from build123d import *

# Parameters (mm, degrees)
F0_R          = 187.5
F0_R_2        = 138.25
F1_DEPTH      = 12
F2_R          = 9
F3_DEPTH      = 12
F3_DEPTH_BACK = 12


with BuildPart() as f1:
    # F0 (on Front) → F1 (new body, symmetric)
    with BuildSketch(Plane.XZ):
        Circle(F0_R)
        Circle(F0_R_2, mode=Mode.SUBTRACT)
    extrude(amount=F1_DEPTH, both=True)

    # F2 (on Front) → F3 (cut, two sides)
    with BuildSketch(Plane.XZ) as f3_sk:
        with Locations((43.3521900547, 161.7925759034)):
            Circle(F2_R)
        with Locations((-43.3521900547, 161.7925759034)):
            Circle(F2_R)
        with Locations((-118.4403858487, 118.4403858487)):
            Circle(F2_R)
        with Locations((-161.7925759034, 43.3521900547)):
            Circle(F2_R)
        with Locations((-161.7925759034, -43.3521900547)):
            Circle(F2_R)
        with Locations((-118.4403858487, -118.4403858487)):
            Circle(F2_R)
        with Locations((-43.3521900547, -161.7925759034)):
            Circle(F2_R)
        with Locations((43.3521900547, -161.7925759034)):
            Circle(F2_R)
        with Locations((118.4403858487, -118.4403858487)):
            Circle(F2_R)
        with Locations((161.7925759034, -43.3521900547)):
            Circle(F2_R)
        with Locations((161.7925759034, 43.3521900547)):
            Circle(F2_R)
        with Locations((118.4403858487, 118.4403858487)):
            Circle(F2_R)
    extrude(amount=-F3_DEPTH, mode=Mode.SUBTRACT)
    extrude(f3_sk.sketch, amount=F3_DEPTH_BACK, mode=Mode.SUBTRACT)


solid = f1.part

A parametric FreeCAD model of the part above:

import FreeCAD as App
import Part
import Sketcher
from FreeCAD import Vector

doc = App.newDocument("Part")
body = doc.addObject("PartDesign::Body", "Body")

sketch1 = body.newObject("Sketcher::SketchObject", "Sketch")
sketch1.AttachmentSupport = (doc.getObject("XZ_Plane"), [""])
sketch1.MapMode = "FlatFace"
sketch1.addGeometry([
    Part.Circle(Vector(0, 0, 0), Vector(0, 0, 1), 188),
    Part.Circle(Vector(0, 0, 0), Vector(0, 0, 1), 138),
], False)
sketch1.addConstraint([
    Sketcher.Constraint("Coincident", 0, 3, -1, 1),
    Sketcher.Constraint("Coincident", 1, 3, -1, 1),
    Sketcher.Constraint("Diameter", 0, 375.0),
    Sketcher.Constraint("Diameter", 1, 276.5),
])
pad1 = body.newObject("PartDesign::Pad", "Pad")
pad1.Profile = sketch1
pad1.Length = 24
pad1.Midplane = True

sketch2 = body.newObject("Sketcher::SketchObject", "Sketch001")
sketch2.AttachmentSupport = (doc.getObject("XZ_Plane"), [""])
sketch2.MapMode = "FlatFace"
sketch2.addGeometry([
    Part.Circle(Vector(43, 162, 0), Vector(0, 0, 1), 9),
    Part.Circle(Vector(-43, 162, 0), Vector(0, 0, 1), 9),
    Part.Circle(Vector(-118, 118, 0), Vector(0, 0, 1), 9),
    Part.Circle(Vector(-162, 43, 0), Vector(0, 0, 1), 9),
    Part.Circle(Vector(-162, -43, 0), Vector(0, 0, 1), 9),
    Part.Circle(Vector(-118, -118, 0), Vector(0, 0, 1), 9),
    Part.Circle(Vector(-43, -162, 0), Vector(0, 0, 1), 9),
    Part.Circle(Vector(43, -162, 0), Vector(0, 0, 1), 9),
    Part.Circle(Vector(118, -118, 0), Vector(0, 0, 1), 9),
    Part.Circle(Vector(162, -43, 0), Vector(0, 0, 1), 9),
    Part.Circle(Vector(162, 43, 0), Vector(0, 0, 1), 9),
    Part.Circle(Vector(118, 118, 0), Vector(0, 0, 1), 9),
], False)
sketch2.addConstraint([
    Sketcher.Constraint("Equal", 0, 1),
    Sketcher.Constraint("Equal", 1, 2),
    Sketcher.Constraint("Equal", 2, 3),
    Sketcher.Constraint("Equal", 3, 4),
    Sketcher.Constraint("Equal", 4, 5),
    Sketcher.Constraint("Equal", 5, 6),
    Sketcher.Constraint("Equal", 6, 7),
    Sketcher.Constraint("Equal", 7, 8),
    Sketcher.Constraint("Equal", 8, 9),
    Sketcher.Constraint("Equal", 9, 10),
    Sketcher.Constraint("Equal", 10, 11),
    Sketcher.Constraint("Symmetric", 0, 3, 6, 3, -1, 1),
    Sketcher.Constraint("Symmetric", 1, 3, 7, 3, -1, 1),
    Sketcher.Constraint("Symmetric", 2, 3, 8, 3, -1, 1),
    Sketcher.Constraint("Symmetric", 3, 3, 9, 3, -1, 1),
    Sketcher.Constraint("Symmetric", 4, 3, 10, 3, -1, 1),
    Sketcher.Constraint("Symmetric", 5, 3, 11, 3, -1, 1),
    Sketcher.Constraint("Symmetric", 0, 3, 1, 3, -2),
    Sketcher.Constraint("Symmetric", 5, 3, 8, 3, -2),
    Sketcher.Constraint("Symmetric", 4, 3, 9, 3, -2),
    Sketcher.Constraint("Diameter", 0, 18.0),
    Sketcher.Constraint("DistanceX", -1, 1, 0, 3, 43.35219),
    Sketcher.Constraint("DistanceY", -1, 1, 3, 3, 43.35219),
    Sketcher.Constraint("DistanceY", 2, 3, 1, 3, 43.35219),
    Sketcher.Constraint("DistanceX", 3, 3, 2, 3, 43.35219),
    Sketcher.Constraint("DistanceY", 5, 3, 2, 3, 236.880772),
    Sketcher.Constraint("DistanceX", 5, 3, 8, 3, 236.880772),
])
pocket1 = body.newObject("PartDesign::Pocket", "Pocket")
pocket1.Profile = sketch2
pocket1.Type = "ThroughAll"
pocket1.Midplane = True

doc.recompute()
